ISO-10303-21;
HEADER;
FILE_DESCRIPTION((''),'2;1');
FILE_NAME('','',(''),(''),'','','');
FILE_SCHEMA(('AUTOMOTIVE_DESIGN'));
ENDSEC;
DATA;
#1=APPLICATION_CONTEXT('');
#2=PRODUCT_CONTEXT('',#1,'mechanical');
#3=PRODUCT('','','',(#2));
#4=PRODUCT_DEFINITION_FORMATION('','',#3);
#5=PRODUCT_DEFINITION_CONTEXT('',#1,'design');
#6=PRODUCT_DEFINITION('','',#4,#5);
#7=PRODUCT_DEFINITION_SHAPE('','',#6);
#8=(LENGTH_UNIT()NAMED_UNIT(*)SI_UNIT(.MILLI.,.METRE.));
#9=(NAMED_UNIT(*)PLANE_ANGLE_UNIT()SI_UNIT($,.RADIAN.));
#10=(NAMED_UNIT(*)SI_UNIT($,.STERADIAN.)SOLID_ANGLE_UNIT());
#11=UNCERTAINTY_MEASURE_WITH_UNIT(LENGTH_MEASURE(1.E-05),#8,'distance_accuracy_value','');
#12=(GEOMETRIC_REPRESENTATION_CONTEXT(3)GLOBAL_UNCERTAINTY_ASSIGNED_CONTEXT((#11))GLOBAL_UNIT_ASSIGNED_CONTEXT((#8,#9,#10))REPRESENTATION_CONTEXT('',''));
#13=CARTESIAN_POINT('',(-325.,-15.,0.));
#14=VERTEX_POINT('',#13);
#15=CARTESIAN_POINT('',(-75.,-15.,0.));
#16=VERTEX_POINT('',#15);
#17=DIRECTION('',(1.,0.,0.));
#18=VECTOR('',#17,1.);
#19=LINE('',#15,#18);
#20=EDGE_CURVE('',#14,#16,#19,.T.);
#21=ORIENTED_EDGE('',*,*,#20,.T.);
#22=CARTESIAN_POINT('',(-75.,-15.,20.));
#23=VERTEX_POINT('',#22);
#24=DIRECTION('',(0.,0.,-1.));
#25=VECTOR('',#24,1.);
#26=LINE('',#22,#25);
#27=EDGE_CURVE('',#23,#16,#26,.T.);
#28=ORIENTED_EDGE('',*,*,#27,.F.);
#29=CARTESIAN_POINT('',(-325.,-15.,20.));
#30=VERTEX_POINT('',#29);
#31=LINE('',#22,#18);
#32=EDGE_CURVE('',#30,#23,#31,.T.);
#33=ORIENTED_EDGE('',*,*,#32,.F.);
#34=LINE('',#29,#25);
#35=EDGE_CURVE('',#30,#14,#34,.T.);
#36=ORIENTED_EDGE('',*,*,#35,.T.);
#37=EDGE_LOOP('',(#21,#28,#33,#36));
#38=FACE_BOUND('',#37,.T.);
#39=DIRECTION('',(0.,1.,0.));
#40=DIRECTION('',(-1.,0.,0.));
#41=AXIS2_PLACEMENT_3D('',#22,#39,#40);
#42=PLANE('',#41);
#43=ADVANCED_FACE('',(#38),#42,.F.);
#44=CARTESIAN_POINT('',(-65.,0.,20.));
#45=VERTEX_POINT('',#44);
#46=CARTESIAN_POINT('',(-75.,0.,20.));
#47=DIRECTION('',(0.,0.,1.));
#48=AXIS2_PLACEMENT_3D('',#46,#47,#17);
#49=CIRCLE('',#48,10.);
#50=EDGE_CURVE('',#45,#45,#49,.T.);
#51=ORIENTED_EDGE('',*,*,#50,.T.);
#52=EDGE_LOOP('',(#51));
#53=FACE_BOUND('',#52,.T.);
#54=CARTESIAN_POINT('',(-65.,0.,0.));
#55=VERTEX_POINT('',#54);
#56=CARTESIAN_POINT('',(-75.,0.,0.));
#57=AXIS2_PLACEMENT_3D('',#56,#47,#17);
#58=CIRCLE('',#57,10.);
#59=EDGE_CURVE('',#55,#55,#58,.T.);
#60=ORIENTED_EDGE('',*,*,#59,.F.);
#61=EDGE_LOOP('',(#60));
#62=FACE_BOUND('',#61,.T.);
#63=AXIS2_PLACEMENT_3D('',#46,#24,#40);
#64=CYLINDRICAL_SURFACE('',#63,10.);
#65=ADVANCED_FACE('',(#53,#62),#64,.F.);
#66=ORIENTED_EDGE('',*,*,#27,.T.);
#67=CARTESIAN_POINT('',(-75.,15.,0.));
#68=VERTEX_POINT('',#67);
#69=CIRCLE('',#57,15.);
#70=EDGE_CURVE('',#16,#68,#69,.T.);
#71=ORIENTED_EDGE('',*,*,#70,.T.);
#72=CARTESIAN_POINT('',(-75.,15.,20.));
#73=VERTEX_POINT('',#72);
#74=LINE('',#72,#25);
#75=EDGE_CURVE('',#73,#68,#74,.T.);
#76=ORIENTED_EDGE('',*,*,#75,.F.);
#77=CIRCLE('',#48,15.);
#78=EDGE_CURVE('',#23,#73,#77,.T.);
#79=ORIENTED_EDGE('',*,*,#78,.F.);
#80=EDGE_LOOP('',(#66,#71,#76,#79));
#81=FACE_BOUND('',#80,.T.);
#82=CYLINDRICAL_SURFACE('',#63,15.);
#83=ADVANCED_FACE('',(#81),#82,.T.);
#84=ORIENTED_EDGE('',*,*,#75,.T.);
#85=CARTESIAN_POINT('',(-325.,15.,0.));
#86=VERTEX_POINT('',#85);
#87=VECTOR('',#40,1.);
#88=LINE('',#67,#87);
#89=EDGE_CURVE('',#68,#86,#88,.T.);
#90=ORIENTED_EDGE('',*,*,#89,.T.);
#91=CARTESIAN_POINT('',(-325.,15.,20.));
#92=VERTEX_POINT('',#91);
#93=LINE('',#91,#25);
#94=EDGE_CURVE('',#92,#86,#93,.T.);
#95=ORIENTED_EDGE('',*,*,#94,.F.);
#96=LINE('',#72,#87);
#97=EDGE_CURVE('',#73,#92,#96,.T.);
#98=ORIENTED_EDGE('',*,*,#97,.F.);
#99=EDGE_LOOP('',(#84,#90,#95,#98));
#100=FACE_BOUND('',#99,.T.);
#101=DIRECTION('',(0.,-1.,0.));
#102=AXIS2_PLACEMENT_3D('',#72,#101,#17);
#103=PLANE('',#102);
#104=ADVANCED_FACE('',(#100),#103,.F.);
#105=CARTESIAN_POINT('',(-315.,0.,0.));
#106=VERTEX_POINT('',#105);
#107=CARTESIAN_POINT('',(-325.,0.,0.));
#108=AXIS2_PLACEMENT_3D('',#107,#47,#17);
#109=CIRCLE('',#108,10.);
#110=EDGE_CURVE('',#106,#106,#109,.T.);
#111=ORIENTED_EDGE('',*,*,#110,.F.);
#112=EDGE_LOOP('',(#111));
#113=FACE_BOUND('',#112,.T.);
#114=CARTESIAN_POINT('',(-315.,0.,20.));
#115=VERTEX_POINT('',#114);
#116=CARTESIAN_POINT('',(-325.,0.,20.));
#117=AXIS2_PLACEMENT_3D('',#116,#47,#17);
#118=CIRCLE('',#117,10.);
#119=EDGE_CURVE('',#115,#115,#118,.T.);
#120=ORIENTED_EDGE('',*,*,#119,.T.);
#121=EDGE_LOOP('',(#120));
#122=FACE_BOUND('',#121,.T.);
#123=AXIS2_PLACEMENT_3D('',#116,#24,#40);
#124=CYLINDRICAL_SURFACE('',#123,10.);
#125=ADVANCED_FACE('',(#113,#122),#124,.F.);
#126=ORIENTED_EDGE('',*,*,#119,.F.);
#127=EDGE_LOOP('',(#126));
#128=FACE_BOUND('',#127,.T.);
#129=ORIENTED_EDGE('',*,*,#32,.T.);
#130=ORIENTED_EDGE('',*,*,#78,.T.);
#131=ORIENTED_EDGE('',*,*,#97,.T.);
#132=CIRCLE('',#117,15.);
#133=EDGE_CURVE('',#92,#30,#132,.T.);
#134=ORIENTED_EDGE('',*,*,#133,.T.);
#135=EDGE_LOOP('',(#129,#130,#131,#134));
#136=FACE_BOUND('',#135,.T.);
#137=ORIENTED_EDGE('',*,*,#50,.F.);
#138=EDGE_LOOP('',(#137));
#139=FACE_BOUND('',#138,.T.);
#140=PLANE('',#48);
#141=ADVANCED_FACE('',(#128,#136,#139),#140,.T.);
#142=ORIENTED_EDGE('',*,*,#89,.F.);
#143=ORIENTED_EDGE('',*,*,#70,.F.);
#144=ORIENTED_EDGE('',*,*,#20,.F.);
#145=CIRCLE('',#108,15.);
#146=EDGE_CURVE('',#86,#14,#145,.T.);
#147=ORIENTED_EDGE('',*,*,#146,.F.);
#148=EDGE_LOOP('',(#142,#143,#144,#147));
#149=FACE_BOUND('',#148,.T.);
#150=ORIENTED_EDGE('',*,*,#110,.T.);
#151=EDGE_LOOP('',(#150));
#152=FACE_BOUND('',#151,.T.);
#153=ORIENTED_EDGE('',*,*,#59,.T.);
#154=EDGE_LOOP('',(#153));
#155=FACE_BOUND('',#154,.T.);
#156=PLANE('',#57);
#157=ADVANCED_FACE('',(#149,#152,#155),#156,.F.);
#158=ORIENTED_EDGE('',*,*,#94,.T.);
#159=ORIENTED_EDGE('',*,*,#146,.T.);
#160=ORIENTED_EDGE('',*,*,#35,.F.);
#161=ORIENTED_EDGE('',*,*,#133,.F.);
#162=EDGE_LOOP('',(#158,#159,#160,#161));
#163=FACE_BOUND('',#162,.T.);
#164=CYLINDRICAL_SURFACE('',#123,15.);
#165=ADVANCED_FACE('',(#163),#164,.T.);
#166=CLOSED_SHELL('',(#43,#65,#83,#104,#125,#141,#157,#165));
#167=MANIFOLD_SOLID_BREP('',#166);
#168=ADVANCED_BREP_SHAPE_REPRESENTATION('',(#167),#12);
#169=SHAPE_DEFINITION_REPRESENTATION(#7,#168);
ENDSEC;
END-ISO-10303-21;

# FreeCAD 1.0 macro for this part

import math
import FreeCAD as App
import Part
import Sketcher
from FreeCAD import Vector
Q = App.Units.Quantity

doc = App.newDocument("Part")
body = doc.addObject("PartDesign::Body", "Body")

# Sketch on XY plane
sketch1 = body.newObject("Sketcher::SketchObject", "Sketch")
sketch1.AttachmentSupport = (doc.getObject("XY_Plane"), [""])
sketch1.MapMode = "FlatFace"
sketch1.addGeometry([
    Part.LineSegment(Vector(-325, -15, 0), Vector(-75, -15, 0)),  # 0
    Part.ArcOfCircle(Part.Circle(Vector(-75, 0, 0), Vector(0, 0, 1), 15), math.radians(-90), math.radians(90)),  # 1
    Part.LineSegment(Vector(-75, 15, 0), Vector(-325, 15, 0)),  # 2
    Part.ArcOfCircle(Part.Circle(Vector(-325, 0, 0), Vector(0, 0, 1), 15), math.radians(90), math.radians(270)),  # 3
    Part.Circle(Vector(-75, 0, 0), Vector(0, 0, 1), 10),  # 4
    Part.Circle(Vector(-325, 0, 0), Vector(0, 0, 1), 10),  # 5
], False)
sketch1.addConstraint([
    Sketcher.Constraint("Tangent", 0, 2, 1, 1),
    Sketcher.Constraint("Tangent", 1, 2, 2, 1),
    Sketcher.Constraint("Tangent", 2, 2, 3, 1),
    Sketcher.Constraint("Tangent", 3, 2, 0, 1),
    Sketcher.Constraint("Horizontal", 0),
    Sketcher.Constraint("Horizontal", 2),
    Sketcher.Constraint("Coincident", 4, 3, 1, 3),
    Sketcher.Constraint("Coincident", 5, 3, 3, 3),
    Sketcher.Constraint("Equal", 4, 5),
    Sketcher.Constraint("PointOnObject", 1, 3, -1),
    Sketcher.Constraint("Diameter", 4, Q("20 mm")),
    Sketcher.Constraint("Radius", 1, Q("15 mm")),
    Sketcher.Constraint("DistanceX", 0, 1, 0, 2, Q("250 mm")),
    Sketcher.Constraint("DistanceX", 1, 3, -1, 1, Q("75 mm")),
])
pad1 = body.newObject("PartDesign::Pad", "Pad")
pad1.Profile = sketch1
pad1.Length = 20

doc.recompute()
